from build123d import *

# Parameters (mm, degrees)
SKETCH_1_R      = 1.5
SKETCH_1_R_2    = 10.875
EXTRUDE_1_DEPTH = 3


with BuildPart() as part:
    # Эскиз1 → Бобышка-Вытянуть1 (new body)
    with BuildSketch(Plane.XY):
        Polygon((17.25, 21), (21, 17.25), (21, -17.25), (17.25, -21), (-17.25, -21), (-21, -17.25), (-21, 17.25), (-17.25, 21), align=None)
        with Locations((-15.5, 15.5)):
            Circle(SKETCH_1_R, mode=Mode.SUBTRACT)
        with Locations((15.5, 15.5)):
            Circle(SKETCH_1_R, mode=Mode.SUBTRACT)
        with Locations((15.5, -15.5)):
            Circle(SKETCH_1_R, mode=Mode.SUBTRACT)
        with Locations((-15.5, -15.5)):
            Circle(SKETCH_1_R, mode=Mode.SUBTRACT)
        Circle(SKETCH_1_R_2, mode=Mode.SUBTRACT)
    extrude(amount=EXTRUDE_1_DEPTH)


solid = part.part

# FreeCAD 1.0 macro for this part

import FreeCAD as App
import Part
import Sketcher
from FreeCAD import Vector
Q = App.Units.Quantity

doc = App.newDocument("Part")
body = doc.addObject("PartDesign::Body", "Body")

# Sketch on XY plane
sketch1 = body.newObject("Sketcher::SketchObject", "Sketch")
sketch1.AttachmentSupport = (doc.getObject("XY_Plane"), [""])
sketch1.MapMode = "FlatFace"
sketch1.addGeometry([
    Part.LineSegment(Vector(21, 17.25, 0), Vector(17.25, 21, 0)),  # 0
    Part.LineSegment(Vector(17.25, 21, 0), Vector(-17.25, 21, 0)),  # 1
    Part.LineSegment(Vector(-17.25, 21, 0), Vector(-21, 17.25, 0)),  # 2
    Part.LineSegment(Vector(-21, 17.25, 0), Vector(-21, -17.25, 0)),  # 3
    Part.LineSegment(Vector(-21, -17.25, 0), Vector(-17.25, -21, 0)),  # 4
    Part.LineSegment(Vector(-17.25, -21, 0), Vector(17.25, -21, 0)),  # 5
    Part.LineSegment(Vector(17.25, -21, 0), Vector(21, -17.25, 0)),  # 6
    Part.LineSegment(Vector(21, -17.25, 0), Vector(21, 17.25, 0)),  # 7
    Part.Circle(Vector(15.5, -15.5, 0), Vector(0, 0, 1), 1.5),  # 8
    Part.Circle(Vector(-15.5, -15.5, 0), Vector(0, 0, 1), 1.5),  # 9
    Part.Circle(Vector(15.5, 15.5, 0), Vector(0, 0, 1), 1.5),  # 10
    Part.Circle(Vector(0, 0, 0), Vector(0, 0, 1), 10.875),  # 11
    Part.Circle(Vector(-15.5, 15.5, 0), Vector(0, 0, 1), 1.5),  # 12
], False)
sketch1.addConstraint([
    Sketcher.Constraint("Coincident", 0, 2, 1, 1),
    Sketcher.Constraint("Coincident", 1, 2, 2, 1),
    Sketcher.Constraint("Coincident", 2, 2, 3, 1),
    Sketcher.Constraint("Coincident", 3, 2, 4, 1),
    Sketcher.Constraint("Coincident", 4, 2, 5, 1),
    Sketcher.Constraint("Coincident", 5, 2, 6, 1),
    Sketcher.Constraint("Coincident", 6, 2, 7, 1),
    Sketcher.Constraint("Coincident", 7, 2, 0, 1),
    Sketcher.Constraint("Horizontal", 1),
    Sketcher.Constraint("Vertical", 3),
    Sketcher.Constraint("Horizontal", 5),
    Sketcher.Constraint("Vertical", 7),
    Sketcher.Constraint("Coincident", 11, 3, -1, 1),
    Sketcher.Constraint("Equal", 8, 9),
    Sketcher.Constraint("Equal", 9, 10),
    Sketcher.Constraint("Equal", 10, 12),
    Sketcher.Constraint("Symmetric", 9, 3, 10, 3, -1, 1),
    Sketcher.Constraint("Symmetric", 8, 3, 12, 3, -1, 1),
    Sketcher.Constraint("Symmetric", 0, 2, 4, 2, -1, 1),
    Sketcher.Constraint("Symmetric", 2, 2, 6, 2, -1, 1),
    Sketcher.Constraint("Symmetric", 8, 3, 9, 3, -2),
    Sketcher.Constraint("Perpendicular", 0, 2),
    Sketcher.Constraint("Perpendicular", 2, 4),
    Sketcher.Constraint("Perpendicular", 4, 6),
    Sketcher.Constraint("Horizontal", 3, 2, 6, 2),
    Sketcher.Constraint("Vertical", 1, 2, 4, 2),
    Sketcher.Constraint("Equal", 5, 3),
    Sketcher.Constraint("Diameter", 8, Q("3 mm")),
    Sketcher.Constraint("Diameter", 11, Q("21.75 mm")),
    Sketcher.Constraint("DistanceX", 1, 2, 1, 1, Q("34.5 mm")),
    Sketcher.Constraint("DistanceY", -1, 1, 0, 2, Q("21 mm")),
    Sketcher.Constraint("DistanceX", 9, 3, 8, 3, Q("31 mm")),
    Sketcher.Constraint("DistanceY", 8, 3, 10, 3, Q("31 mm")),
])
pad1 = body.newObject("PartDesign::Pad", "Pad")
pad1.Profile = sketch1
pad1.Length = 3

doc.recompute()
